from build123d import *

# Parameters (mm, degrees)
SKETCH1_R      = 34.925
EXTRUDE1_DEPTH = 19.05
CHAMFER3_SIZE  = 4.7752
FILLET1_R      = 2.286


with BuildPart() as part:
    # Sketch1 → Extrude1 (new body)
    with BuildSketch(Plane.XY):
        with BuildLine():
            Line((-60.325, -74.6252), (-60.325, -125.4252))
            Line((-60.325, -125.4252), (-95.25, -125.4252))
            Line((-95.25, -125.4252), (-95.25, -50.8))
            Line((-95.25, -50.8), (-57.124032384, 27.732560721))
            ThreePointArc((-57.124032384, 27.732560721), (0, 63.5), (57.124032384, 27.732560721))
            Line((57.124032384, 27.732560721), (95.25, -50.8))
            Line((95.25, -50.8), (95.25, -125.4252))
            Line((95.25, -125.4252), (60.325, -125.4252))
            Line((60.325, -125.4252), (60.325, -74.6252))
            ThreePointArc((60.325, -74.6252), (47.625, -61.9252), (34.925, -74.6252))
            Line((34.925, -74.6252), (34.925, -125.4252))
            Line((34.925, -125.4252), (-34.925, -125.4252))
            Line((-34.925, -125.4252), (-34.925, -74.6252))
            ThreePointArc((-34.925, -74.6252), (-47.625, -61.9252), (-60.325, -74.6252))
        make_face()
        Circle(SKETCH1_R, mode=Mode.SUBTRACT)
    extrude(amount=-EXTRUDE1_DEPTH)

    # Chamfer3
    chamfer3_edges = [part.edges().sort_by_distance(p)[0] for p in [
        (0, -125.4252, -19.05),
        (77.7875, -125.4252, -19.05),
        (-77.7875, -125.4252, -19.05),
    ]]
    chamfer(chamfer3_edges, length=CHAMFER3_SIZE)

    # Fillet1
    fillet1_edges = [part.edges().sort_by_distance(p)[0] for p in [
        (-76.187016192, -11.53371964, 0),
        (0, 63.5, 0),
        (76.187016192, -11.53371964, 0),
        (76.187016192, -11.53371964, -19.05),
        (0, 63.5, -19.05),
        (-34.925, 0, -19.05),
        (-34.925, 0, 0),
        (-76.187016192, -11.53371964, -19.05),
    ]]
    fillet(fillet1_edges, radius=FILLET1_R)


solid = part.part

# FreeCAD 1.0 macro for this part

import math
import FreeCAD as App
import Part
import Sketcher
Q = App.Units.Quantity


def edges_at(feature, points):
    """Names of the edges that pass closest to the given points."""
    edges = feature.Shape.Edges
    near = lambda p: min(range(len(edges)), key=lambda i: edges[i].distToShape(Part.Vertex(*p))[0])
    return sorted({f"Edge{near(p) + 1}" for p in points})

doc = App.newDocument("Part")
body = doc.addObject("PartDesign::Body", "Body")

# Sketch on XY plane
sketch1 = body.newObject("Sketcher::SketchObject", "Sketch")
sketch1.AttachmentSupport = (doc.getObject("XY_Plane"), [""])
sketch1.MapMode = "FlatFace"
sketch1.addGeometry([
    Part.LineSegment(App.Vector(-60, -125, 0), App.Vector(-60, -75, 0)),  # 0
    Part.ArcOfCircle(Part.Circle(App.Vector(-48, -75, 0), App.Vector(0, 0, 1), 13), math.radians(0), math.radians(180)),  # 1
    Part.LineSegment(App.Vector(-35, -75, 0), App.Vector(-35, -125, 0)),  # 2
    Part.LineSegment(App.Vector(-35, -125, 0), App.Vector(35, -125, 0)),  # 3
    Part.LineSegment(App.Vector(35, -125, 0), App.Vector(35, -75, 0)),  # 4
    Part.ArcOfCircle(Part.Circle(App.Vector(48, -75, 0), App.Vector(0, 0, 1), 13), math.radians(0), math.radians(180)),  # 5
    Part.LineSegment(App.Vector(60, -75, 0), App.Vector(60, -125, 0)),  # 6
    Part.LineSegment(App.Vector(60, -125, 0), App.Vector(95, -125, 0)),  # 7
    Part.LineSegment(App.Vector(95, -125, 0), App.Vector(95, -51, 0)),  # 8
    Part.LineSegment(App.Vector(95, -51, 0), App.Vector(57, 28, 0)),  # 9
    Part.ArcOfCircle(Part.Circle(App.Vector(0, 0, 0), App.Vector(0, 0, 1), 63), math.radians(26), math.radians(154)),  # 10
    Part.LineSegment(App.Vector(-57, 28, 0), App.Vector(-95, -51, 0)),  # 11
    Part.LineSegment(App.Vector(-95, -51, 0), App.Vector(-95, -125, 0)),  # 12
    Part.LineSegment(App.Vector(-95, -125, 0), App.Vector(-60, -125, 0)),  # 13
    Part.Circle(App.Vector(0, 0, 0), App.Vector(0, 0, 1), 35),  # 14
], False)
sketch1.addConstraint([
    Sketcher.Constraint("Tangent", 0, 2, 1, 2),
    Sketcher.Constraint("Tangent", 1, 1, 2, 1),
    Sketcher.Constraint("Coincident", 2, 2, 3, 1),
    Sketcher.Constraint("Coincident", 3, 2, 4, 1),
    Sketcher.Constraint("Tangent", 4, 2, 5, 2),
    Sketcher.Constraint("Tangent", 5, 1, 6, 1),
    Sketcher.Constraint("Coincident", 6, 2, 7, 1),
    Sketcher.Constraint("Coincident", 7, 2, 8, 1),
    Sketcher.Constraint("Coincident", 8, 2, 9, 1),
    Sketcher.Constraint("Tangent", 9, 2, 10, 1),
    Sketcher.Constraint("Tangent", 10, 2, 11, 1),
    Sketcher.Constraint("Coincident", 11, 2, 12, 1),
    Sketcher.Constraint("Coincident", 12, 2, 13, 1),
    Sketcher.Constraint("Coincident", 13, 2, 0, 1),
    Sketcher.Constraint("Vertical", 0),
    Sketcher.Constraint("Vertical", 2),
    Sketcher.Constraint("Horizontal", 3),
    Sketcher.Constraint("Vertical", 4),
    Sketcher.Constraint("Vertical", 6),
    Sketcher.Constraint("Horizontal", 7),
    Sketcher.Constraint("Vertical", 8),
    Sketcher.Constraint("Vertical", 12),
    Sketcher.Constraint("Horizontal", 13),
    Sketcher.Constraint("Coincident", 10, 3, -1, 1),
    Sketcher.Constraint("Coincident", 14, 3, -1, 1),
    Sketcher.Constraint("Equal", 1, 5),
    Sketcher.Constraint("Symmetric", 1, 3, 5, 3, -2),
    Sketcher.Constraint("Symmetric", 8, 2, 11, 2, -2),
    Sketcher.Constraint("Horizontal", 3, 2, 6, 2),
    Sketcher.Constraint("Horizontal", 7, 2, 12, 2),
    Sketcher.Constraint("Radius", 1, Q("0.5 in")),
    Sketcher.Constraint("Radius", 10, Q("2.5 in")),
    Sketcher.Constraint("Diameter", 14, Q("2.75 in")),
    Sketcher.Constraint("DistanceY", 0, 1, 0, 2, Q("2 in")),
    Sketcher.Constraint("DistanceY", 8, 2, -1, 1, Q("2 in")),
    Sketcher.Constraint("DistanceX", 3, 1, 3, 2, Q("2.75 in")),
    Sketcher.Constraint("DistanceX", 7, 1, 7, 2, Q("1.375 in")),
    Sketcher.Constraint("DistanceY", 8, 1, 8, 2, Q("2.938 in")),
])
pad1 = body.newObject("PartDesign::Pad", "Pad")
pad1.Profile = sketch1
pad1.Length = Q("0.75 in")
pad1.Reversed = True
doc.recompute()

chamfer = body.newObject("PartDesign::Chamfer", "Chamfer")
chamfer.Base = (pad1, edges_at(pad1, [(0, -125.425, -19.05), (77.787, -125.425, -19.05), (-77.787, -125.425, -19.05)]))
chamfer.Size = Q("0.188 in")
doc.recompute()

fillet = body.newObject("PartDesign::Fillet", "Fillet")
fillet.Base = (chamfer, edges_at(chamfer, [
    (-76.187, -11.534, 0),
    (0, 63.5, 0),
    (76.187, -11.534, 0),
    (76.187, -11.534, -19.05),
    (0, 63.5, -19.05),
    (-34.925, 0, -19.05),
    (-34.925, 0, 0),
    (-76.187, -11.534, -19.05),
]))
fillet.Radius = Q("0.09 in")

doc.recompute()
